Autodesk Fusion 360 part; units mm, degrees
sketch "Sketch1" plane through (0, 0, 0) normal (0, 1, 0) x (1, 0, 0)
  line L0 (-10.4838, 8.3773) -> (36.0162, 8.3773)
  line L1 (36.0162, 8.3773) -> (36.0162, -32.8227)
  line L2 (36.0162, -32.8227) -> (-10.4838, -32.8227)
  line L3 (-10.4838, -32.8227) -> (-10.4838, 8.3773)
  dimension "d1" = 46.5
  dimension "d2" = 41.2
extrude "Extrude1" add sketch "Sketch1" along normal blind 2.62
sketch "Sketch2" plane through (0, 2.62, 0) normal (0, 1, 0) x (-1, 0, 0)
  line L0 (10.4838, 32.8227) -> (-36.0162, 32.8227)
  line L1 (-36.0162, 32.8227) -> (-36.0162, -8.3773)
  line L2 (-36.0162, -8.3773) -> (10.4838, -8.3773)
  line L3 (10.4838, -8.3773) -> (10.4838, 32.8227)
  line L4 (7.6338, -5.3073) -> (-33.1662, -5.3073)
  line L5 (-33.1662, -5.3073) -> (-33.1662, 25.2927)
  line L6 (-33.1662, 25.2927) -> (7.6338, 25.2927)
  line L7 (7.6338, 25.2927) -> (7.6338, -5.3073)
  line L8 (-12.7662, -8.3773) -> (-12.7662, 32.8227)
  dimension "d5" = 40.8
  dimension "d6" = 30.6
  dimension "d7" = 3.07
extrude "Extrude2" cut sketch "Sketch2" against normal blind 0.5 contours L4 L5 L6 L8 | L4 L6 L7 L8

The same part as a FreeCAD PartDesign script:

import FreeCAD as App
import Part
import Sketcher

V = App.Vector
Q = App.Units.Quantity


def add_polygon(sketch, points):
    """Adds a closed chain of lines whose ends are joined by coincident constraints."""
    first, n = sketch.GeometryCount, len(points)
    for a, b in zip(points, points[1:] + points[:1]):
        sketch.addGeometry(Part.LineSegment(App.Vector(*a, 0), App.Vector(*b, 0)), False)
    for i in range(n):
        sketch.addConstraint(Sketcher.Constraint("Coincident", first + i, 2, first + (i + 1) % n, 1))

doc = App.newDocument("Part")
params = doc.addObject("Spreadsheet::Sheet", "Params")
for row, (alias, value) in enumerate([
    ("sketch1_width", "46.5 mm"),
    ("sketch1_height", "41.2 mm"),
    ("pad1_length", "2.62 mm"),
    ("sketch2_width", "40.8 mm"),
    ("sketch2_height", "30.6 mm"),
    ("pocket1_length", "0.5 mm"),
], start=1):
    params.set(f"A{row}", alias)
    params.set(f"B{row}", "=" + value)
    params.setAlias(f"B{row}", alias)

body = doc.addObject("PartDesign::Body", "Body")

sketch1 = doc.addObject("Sketcher::SketchObject", "Sketch")
body.addObject(sketch1)
sketch1.AttachmentSupport = (doc.XZ_Plane, [""])
sketch1.MapMode = "FlatFace"
add_polygon(sketch1, [(36, -8), (-10, -8), (-10, 33), (36, 33)])
sketch1.addConstraint(Sketcher.Constraint("Horizontal", 0))
sketch1.addConstraint(Sketcher.Constraint("Vertical", 1))
sketch1.addConstraint(Sketcher.Constraint("Horizontal", 2))
sketch1.addConstraint(Sketcher.Constraint("Vertical", 3))
sketch1.addConstraint(Sketcher.Constraint("DistanceX", 0, 2, 0, 1, Q("46.5 mm")))
sketch1.addConstraint(Sketcher.Constraint("DistanceY", 1, 1, 1, 2, Q("41.2 mm")))
sketch1.addConstraint(Sketcher.Constraint("DistanceX", 0, 2, -1, 1, Q("10.4838 mm")))
sketch1.addConstraint(Sketcher.Constraint("DistanceY", 0, 2, -1, 1, Q("8.3773 mm")))
sketch1.setExpression("Constraints[8]", "Params.sketch1_width")
sketch1.setExpression("Constraints[9]", "Params.sketch1_height")
pad1 = doc.addObject("PartDesign::Pad", "Pad")
body.addObject(pad1)
pad1.Profile = sketch1
pad1.setExpression("Length", "Params.pad1_length")
pad1.Reversed = True

sketch2 = doc.addObject("Sketcher::SketchObject", "Sketch001")
body.addObject(sketch2)
sketch2.AttachmentSupport = (doc.XZ_Plane, [""])
sketch2.MapMode = "FlatFace"
sketch2.AttachmentOffset = App.Placement(V(0, 0, -2.62), App.Rotation())
add_polygon(sketch2, [(33, -5), (-8, -5), (-8, 25), (33, 25)])
sketch2.addConstraint(Sketcher.Constraint("Horizontal", 0))
sketch2.addConstraint(Sketcher.Constraint("Vertical", 1))
sketch2.addConstraint(Sketcher.Constraint("Horizontal", 2))
sketch2.addConstraint(Sketcher.Constraint("Vertical", 3))
sketch2.addConstraint(Sketcher.Constraint("DistanceX", 0, 2, 0, 1, Q("40.8 mm")))
sketch2.addConstraint(Sketcher.Constraint("DistanceY", 1, 1, 1, 2, Q("30.6 mm")))
sketch2.addConstraint(Sketcher.Constraint("DistanceX", 0, 2, -1, 1, Q("7.6338 mm")))
sketch2.addConstraint(Sketcher.Constraint("DistanceY", 0, 2, -1, 1, Q("5.3073 mm")))
sketch2.setExpression("Constraints[8]", "Params.sketch2_width")
sketch2.setExpression("Constraints[9]", "Params.sketch2_height")
pocket1 = doc.addObject("PartDesign::Pocket", "Pocket")
body.addObject(pocket1)
pocket1.Profile = sketch2
pocket1.setExpression("Length", "Params.pocket1_length")
pocket1.Reversed = True

doc.recompute()
